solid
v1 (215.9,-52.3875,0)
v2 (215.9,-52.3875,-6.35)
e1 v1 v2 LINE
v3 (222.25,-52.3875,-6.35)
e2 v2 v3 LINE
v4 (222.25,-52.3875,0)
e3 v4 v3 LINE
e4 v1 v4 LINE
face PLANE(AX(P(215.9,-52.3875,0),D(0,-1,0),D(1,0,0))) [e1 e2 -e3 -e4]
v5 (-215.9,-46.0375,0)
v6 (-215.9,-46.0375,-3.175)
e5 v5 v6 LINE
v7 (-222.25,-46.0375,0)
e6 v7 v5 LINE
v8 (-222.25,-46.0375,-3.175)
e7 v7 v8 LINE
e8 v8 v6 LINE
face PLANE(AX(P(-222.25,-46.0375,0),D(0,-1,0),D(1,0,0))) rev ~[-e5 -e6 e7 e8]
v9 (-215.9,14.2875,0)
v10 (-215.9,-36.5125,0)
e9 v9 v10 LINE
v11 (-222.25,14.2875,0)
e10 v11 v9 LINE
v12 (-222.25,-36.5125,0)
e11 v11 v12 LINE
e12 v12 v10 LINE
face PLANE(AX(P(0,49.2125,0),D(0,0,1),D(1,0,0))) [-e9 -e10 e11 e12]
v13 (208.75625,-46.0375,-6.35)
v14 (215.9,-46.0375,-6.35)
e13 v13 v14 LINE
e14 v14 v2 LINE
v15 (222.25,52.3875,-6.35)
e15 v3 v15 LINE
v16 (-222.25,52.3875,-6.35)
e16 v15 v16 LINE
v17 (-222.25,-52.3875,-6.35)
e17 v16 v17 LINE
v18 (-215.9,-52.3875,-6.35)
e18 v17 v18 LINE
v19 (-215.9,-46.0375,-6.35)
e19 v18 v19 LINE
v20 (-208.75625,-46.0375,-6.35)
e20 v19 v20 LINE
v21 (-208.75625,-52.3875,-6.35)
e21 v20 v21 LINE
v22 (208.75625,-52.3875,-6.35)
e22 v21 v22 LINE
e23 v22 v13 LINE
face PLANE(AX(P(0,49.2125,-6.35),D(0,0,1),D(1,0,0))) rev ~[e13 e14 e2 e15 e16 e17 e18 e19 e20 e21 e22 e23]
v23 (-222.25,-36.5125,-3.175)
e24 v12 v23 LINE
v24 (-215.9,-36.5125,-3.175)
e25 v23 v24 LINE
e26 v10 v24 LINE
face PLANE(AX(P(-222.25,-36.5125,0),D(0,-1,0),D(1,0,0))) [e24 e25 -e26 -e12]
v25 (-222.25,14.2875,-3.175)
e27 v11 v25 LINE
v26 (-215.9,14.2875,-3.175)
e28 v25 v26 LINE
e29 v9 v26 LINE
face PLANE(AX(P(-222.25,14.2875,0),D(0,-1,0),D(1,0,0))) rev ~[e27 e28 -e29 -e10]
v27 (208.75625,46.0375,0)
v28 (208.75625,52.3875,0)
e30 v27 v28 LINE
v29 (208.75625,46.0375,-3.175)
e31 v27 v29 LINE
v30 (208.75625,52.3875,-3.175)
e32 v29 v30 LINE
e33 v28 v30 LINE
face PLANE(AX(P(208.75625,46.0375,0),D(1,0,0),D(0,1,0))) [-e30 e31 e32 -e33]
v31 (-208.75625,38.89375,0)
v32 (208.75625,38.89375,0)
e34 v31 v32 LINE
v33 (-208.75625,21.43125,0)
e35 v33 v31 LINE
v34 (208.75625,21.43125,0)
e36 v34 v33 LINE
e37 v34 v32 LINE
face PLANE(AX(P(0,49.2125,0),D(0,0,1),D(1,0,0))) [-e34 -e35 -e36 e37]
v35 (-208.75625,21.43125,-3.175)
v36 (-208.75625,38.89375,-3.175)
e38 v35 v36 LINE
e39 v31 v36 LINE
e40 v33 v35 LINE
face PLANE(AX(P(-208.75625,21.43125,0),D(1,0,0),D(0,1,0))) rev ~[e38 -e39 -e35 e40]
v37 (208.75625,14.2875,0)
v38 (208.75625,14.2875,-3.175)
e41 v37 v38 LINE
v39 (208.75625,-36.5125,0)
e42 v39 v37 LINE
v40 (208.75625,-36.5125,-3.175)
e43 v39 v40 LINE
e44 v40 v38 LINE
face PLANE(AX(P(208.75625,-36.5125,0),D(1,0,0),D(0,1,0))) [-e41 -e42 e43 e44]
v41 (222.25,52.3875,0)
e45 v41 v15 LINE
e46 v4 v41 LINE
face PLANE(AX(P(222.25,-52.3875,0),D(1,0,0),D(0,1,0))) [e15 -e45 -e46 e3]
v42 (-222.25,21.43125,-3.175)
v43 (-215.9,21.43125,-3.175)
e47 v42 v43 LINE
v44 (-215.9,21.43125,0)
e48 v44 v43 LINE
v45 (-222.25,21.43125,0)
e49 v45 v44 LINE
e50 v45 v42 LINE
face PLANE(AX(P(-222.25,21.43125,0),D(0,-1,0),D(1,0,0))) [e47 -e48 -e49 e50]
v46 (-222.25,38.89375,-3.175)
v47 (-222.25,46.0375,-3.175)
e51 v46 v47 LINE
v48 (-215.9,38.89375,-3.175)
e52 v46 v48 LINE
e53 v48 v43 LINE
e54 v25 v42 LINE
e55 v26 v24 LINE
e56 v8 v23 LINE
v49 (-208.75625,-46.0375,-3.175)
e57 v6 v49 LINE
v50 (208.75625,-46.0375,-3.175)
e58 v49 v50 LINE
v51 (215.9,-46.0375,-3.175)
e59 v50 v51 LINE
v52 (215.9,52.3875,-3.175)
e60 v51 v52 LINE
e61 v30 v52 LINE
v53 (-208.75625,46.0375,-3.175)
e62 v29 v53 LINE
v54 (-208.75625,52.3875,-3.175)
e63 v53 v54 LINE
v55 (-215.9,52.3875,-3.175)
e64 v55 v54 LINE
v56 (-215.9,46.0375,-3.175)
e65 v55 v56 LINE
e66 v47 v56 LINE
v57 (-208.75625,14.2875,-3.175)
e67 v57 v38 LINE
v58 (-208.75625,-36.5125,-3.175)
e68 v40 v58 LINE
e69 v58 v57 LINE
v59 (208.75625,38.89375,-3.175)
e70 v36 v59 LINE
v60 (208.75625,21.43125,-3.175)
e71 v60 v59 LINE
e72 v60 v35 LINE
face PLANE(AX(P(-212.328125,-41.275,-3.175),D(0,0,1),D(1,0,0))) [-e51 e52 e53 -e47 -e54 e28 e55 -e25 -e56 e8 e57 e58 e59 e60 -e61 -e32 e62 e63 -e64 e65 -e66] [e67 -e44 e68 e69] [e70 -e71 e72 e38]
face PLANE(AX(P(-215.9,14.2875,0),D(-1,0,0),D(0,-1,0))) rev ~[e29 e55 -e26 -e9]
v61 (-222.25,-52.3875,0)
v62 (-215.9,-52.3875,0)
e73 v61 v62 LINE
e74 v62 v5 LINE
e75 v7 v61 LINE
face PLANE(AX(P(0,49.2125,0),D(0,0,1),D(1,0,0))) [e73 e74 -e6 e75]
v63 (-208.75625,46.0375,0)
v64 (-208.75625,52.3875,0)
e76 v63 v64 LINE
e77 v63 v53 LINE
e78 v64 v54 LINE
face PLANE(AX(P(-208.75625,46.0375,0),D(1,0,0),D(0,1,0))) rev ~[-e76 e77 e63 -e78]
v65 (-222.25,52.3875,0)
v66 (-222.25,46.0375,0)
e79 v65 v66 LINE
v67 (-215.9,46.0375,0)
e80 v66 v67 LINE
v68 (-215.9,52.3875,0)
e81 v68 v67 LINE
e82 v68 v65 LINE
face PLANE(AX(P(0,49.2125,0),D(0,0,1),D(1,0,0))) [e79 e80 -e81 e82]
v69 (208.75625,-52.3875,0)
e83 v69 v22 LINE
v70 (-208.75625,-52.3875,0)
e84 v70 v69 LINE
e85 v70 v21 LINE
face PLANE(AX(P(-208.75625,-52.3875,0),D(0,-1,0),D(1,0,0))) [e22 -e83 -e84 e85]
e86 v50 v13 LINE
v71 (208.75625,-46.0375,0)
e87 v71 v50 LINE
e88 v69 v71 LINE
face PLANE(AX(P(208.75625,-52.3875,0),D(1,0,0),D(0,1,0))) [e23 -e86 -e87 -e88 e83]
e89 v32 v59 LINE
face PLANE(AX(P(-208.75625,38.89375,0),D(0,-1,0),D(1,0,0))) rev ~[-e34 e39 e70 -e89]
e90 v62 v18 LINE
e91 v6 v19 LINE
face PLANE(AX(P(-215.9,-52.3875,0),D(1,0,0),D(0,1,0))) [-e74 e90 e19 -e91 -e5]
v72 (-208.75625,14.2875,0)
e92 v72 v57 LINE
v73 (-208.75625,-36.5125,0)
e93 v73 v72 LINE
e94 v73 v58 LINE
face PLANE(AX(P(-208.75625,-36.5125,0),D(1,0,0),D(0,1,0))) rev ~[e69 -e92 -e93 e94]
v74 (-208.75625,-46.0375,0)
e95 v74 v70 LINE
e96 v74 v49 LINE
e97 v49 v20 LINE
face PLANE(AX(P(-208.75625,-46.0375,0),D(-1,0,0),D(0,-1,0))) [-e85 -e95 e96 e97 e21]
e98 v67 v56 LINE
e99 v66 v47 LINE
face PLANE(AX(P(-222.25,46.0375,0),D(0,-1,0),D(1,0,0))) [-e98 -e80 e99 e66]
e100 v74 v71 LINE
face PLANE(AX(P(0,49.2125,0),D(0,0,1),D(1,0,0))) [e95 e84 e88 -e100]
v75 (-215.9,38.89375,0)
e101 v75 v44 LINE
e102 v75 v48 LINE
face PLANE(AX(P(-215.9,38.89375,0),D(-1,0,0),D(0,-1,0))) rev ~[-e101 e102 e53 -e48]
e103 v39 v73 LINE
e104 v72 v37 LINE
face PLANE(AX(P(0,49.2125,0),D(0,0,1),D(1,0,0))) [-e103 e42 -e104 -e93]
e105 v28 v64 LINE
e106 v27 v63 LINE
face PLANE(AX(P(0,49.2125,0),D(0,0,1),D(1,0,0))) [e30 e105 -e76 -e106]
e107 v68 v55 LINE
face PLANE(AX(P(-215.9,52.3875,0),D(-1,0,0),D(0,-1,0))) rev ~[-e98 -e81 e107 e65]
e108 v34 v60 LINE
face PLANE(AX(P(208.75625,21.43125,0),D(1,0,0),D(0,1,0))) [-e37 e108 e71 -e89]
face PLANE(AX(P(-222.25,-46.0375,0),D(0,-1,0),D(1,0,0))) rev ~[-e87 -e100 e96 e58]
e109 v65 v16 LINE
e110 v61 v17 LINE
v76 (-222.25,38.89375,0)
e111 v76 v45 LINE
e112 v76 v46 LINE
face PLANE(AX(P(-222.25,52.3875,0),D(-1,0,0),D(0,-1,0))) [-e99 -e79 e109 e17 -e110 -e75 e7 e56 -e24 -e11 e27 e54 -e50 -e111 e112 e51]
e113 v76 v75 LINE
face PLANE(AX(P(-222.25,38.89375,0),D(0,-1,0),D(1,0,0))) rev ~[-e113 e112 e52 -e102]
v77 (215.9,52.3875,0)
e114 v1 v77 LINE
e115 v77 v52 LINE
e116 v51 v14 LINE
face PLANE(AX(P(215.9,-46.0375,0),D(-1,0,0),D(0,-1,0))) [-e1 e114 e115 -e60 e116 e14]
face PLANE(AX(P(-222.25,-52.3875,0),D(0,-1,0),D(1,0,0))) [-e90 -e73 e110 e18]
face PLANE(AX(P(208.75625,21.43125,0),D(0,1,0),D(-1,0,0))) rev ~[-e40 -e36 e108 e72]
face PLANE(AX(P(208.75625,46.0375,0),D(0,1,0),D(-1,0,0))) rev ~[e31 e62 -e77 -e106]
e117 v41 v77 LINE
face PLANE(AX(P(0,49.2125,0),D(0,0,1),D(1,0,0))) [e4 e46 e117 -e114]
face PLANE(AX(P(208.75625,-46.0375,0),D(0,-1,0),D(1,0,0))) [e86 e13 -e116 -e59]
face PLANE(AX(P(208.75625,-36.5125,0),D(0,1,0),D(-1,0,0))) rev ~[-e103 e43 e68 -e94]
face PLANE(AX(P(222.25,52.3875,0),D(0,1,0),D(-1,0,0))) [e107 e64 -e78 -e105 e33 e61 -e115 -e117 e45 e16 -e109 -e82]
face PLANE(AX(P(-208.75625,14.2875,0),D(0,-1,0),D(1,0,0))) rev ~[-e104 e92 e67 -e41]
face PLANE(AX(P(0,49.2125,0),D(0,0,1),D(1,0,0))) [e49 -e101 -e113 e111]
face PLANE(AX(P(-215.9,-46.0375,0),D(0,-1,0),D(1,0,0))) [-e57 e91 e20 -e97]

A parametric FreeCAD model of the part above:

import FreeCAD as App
import Part
import Sketcher
from FreeCAD import Vector
Q = App.Units.Quantity

doc = App.newDocument("Part")
body = doc.addObject("PartDesign::Body", "Body")

# Sketch on XY plane
sketch1 = body.newObject("Sketcher::SketchObject", "Sketch")
sketch1.AttachmentSupport = (doc.getObject("XY_Plane"), [""])
sketch1.MapMode = "FlatFace"
sketch1.addGeometry(Part.LineSegment(Vector(-208.75625, -46.0375, 0), Vector(-208.75625, -52.3875, 0)), False)
sketch1.addGeometry(Part.LineSegment(Vector(-208.75625, -52.3875, 0), Vector(208.75625, -52.3875, 0)), False)
sketch1.addGeometry(Part.LineSegment(Vector(208.75625, -52.3875, 0), Vector(208.75625, -46.0375, 0)), False)
sketch1.addGeometry(Part.LineSegment(Vector(208.75625, -46.0375, 0), Vector(215.9, -46.0375, 0)), False)
sketch1.addGeometry(Part.LineSegment(Vector(215.9, -46.0375, 0), Vector(215.9, -52.3875, 0)), False)
sketch1.addGeometry(Part.LineSegment(Vector(215.9, -52.3875, 0), Vector(222.25, -52.3875, 0)), False)
sketch1.addGeometry(Part.LineSegment(Vector(222.25, -52.3875, 0), Vector(222.25, 52.3875, 0)), False)
sketch1.addGeometry(Part.LineSegment(Vector(222.25, 52.3875, 0), Vector(-222.25, 52.3875, 0)), False)
sketch1.addGeometry(Part.LineSegment(Vector(-222.25, 52.3875, 0), Vector(-222.25, -52.3875, 0)), False)
sketch1.addGeometry(Part.LineSegment(Vector(-222.25, -52.3875, 0), Vector(-215.9, -52.3875, 0)), False)
sketch1.addGeometry(Part.LineSegment(Vector(-215.9, -52.3875, 0), Vector(-215.9, -46.0375, 0)), False)
sketch1.addGeometry(Part.LineSegment(Vector(-215.9, -46.0375, 0), Vector(-208.75625, -46.0375, 0)), False)
sketch1.addConstraint(Sketcher.Constraint("Coincident", 0, 2, 1, 1))
sketch1.addConstraint(Sketcher.Constraint("Coincident", 1, 2, 2, 1))
sketch1.addConstraint(Sketcher.Constraint("Coincident", 2, 2, 3, 1))
sketch1.addConstraint(Sketcher.Constraint("Coincident", 3, 2, 4, 1))
sketch1.addConstraint(Sketcher.Constraint("Coincident", 4, 2, 5, 1))
sketch1.addConstraint(Sketcher.Constraint("Coincident", 5, 2, 6, 1))
sketch1.addConstraint(Sketcher.Constraint("Coincident", 6, 2, 7, 1))
sketch1.addConstraint(Sketcher.Constraint("Coincident", 7, 2, 8, 1))
sketch1.addConstraint(Sketcher.Constraint("Coincident", 8, 2, 9, 1))
sketch1.addConstraint(Sketcher.Constraint("Coincident", 9, 2, 10, 1))
sketch1.addConstraint(Sketcher.Constraint("Coincident", 10, 2, 11, 1))
sketch1.addConstraint(Sketcher.Constraint("Coincident", 11, 2, 0, 1))
sketch1.addConstraint(Sketcher.Constraint("Vertical", 0))
sketch1.addConstraint(Sketcher.Constraint("Horizontal", 1))
sketch1.addConstraint(Sketcher.Constraint("Vertical", 2))
sketch1.addConstraint(Sketcher.Constraint("Horizontal", 3))
sketch1.addConstraint(Sketcher.Constraint("Vertical", 4))
sketch1.addConstraint(Sketcher.Constraint("Horizontal", 5))
sketch1.addConstraint(Sketcher.Constraint("Vertical", 6))
sketch1.addConstraint(Sketcher.Constraint("Horizontal", 7))
sketch1.addConstraint(Sketcher.Constraint("Vertical", 8))
sketch1.addConstraint(Sketcher.Constraint("Horizontal", 9))
sketch1.addConstraint(Sketcher.Constraint("Vertical", 10))
sketch1.addConstraint(Sketcher.Constraint("Horizontal", 11))
sketch1.addConstraint(Sketcher.Constraint("Symmetric", 5, 2, 7, 2, -1, 1))
sketch1.addConstraint(Sketcher.Constraint("Symmetric", 4, 2, 9, 2, -2))
sketch1.addConstraint(Sketcher.Constraint("Symmetric", 2, 2, 11, 2, -2))
sketch1.addConstraint(Sketcher.Constraint("Horizontal", 1, 2, 4, 2))
sketch1.addConstraint(Sketcher.Constraint("Equal", 9, 0))
sketch1.addConstraint(Sketcher.Constraint("DistanceX", 7, 2, 7, 1, Q("17.5 in")))
sketch1.addConstraint(Sketcher.Constraint("DistanceX", 5, 1, 5, 2, Q("0.25 in")))
sketch1.addConstraint(Sketcher.Constraint("DistanceX", 1, 1, 1, 2, Q("16.4375 in")))
sketch1.addConstraint(Sketcher.Constraint("DistanceY", 6, 1, 6, 2, Q("4.125 in")))
pad1 = body.newObject("PartDesign::Pad", "Pad")
pad1.Profile = sketch1
pad1.Length = Q("0.25 in")
pad1.Reversed = True

# Sketch on XY plane
sketch2 = body.newObject("Sketcher::SketchObject", "Sketch001")
sketch2.AttachmentSupport = (doc.getObject("XY_Plane"), [""])
sketch2.MapMode = "FlatFace"
sketch2.addGeometry(Part.LineSegment(Vector(215.9, 52.3875, 0), Vector(208.75625, 52.3875, 0)), False)
sketch2.addGeometry(Part.LineSegment(Vector(208.75625, 52.3875, 0), Vector(208.75625, 46.0375, 0)), False)
sketch2.addGeometry(Part.LineSegment(Vector(208.75625, 46.0375, 0), Vector(-208.75625, 46.0375, 0)), False)
sketch2.addGeometry(Part.LineSegment(Vector(-208.75625, 46.0375, 0), Vector(-208.75625, 52.3875, 0)), False)
sketch2.addGeometry(Part.LineSegment(Vector(-208.75625, 52.3875, 0), Vector(-215.9, 52.3875, 0)), False)
sketch2.addGeometry(Part.LineSegment(Vector(-215.9, 52.3875, 0), Vector(-215.9, 46.0375, 0)), False)
sketch2.addGeometry(Part.LineSegment(Vector(-215.9, 46.0375, 0), Vector(-222.25, 46.0375, 0)), False)
sketch2.addGeometry(Part.LineSegment(Vector(-222.25, 46.0375, 0), Vector(-222.25, 38.89375, 0)), False)
sketch2.addGeometry(Part.LineSegment(Vector(-222.25, 38.89375, 0), Vector(-215.9, 38.89375, 0)), False)
sketch2.addGeometry(Part.LineSegment(Vector(-215.9, 38.89375, 0), Vector(-215.9, 21.43125, 0)), False)
sketch2.addGeometry(Part.LineSegment(Vector(-215.9, 21.43125, 0), Vector(-222.25, 21.43125, 0)), False)
sketch2.addGeometry(Part.LineSegment(Vector(-222.25, 21.43125, 0), Vector(-222.25, 14.2875, 0)), False)
sketch2.addGeometry(Part.LineSegment(Vector(-222.25, 14.2875, 0), Vector(-215.9, 14.2875, 0)), False)
sketch2.addGeometry(Part.LineSegment(Vector(-215.9, 14.2875, 0), Vector(-215.9, -36.5125, 0)), False)
sketch2.addGeometry(Part.LineSegment(Vector(-215.9, -36.5125, 0), Vector(-222.25, -36.5125, 0)), False)
sketch2.addGeometry(Part.LineSegment(Vector(-222.25, -36.5125, 0), Vector(-222.25, -46.0375, 0)), False)
sketch2.addGeometry(Part.LineSegment(Vector(-222.25, -46.0375, 0), Vector(215.9, -46.0375, 0)), False)
sketch2.addGeometry(Part.LineSegment(Vector(215.9, -46.0375, 0), Vector(215.9, 52.3875, 0)), False)
sketch2.addGeometry(Part.LineSegment(Vector(-208.75625, -36.5125, 0), Vector(-208.75625, 14.2875, 0)), False)
sketch2.addGeometry(Part.LineSegment(Vector(-208.75625, 14.2875, 0), Vector(208.75625, 14.2875, 0)), False)
sketch2.addGeometry(Part.LineSegment(Vector(208.75625, 14.2875, 0), Vector(208.75625, -36.5125, 0)), False)
sketch2.addGeometry(Part.LineSegment(Vector(208.75625, -36.5125, 0), Vector(-208.75625, -36.5125, 0)), False)
sketch2.addGeometry(Part.LineSegment(Vector(208.75625, 21.43125, 0), Vector(-208.75625, 21.43125, 0)), False)
sketch2.addGeometry(Part.LineSegment(Vector(-208.75625, 21.43125, 0), Vector(-208.75625, 38.89375, 0)), False)
sketch2.addGeometry(Part.LineSegment(Vector(-208.75625, 38.89375, 0), Vector(208.75625, 38.89375, 0)), False)
sketch2.addGeometry(Part.LineSegment(Vector(208.75625, 38.89375, 0), Vector(208.75625, 21.43125, 0)), False)
sketch2.addConstraint(Sketcher.Constraint("Coincident", 0, 2, 1, 1))
sketch2.addConstraint(Sketcher.Constraint("Coincident", 1, 2, 2, 1))
sketch2.addConstraint(Sketcher.Constraint("Coincident", 2, 2, 3, 1))
sketch2.addConstraint(Sketcher.Constraint("Coincident", 3, 2, 4, 1))
sketch2.addConstraint(Sketcher.Constraint("Coincident", 4, 2, 5, 1))
sketch2.addConstraint(Sketcher.Constraint("Coincident", 5, 2, 6, 1))
sketch2.addConstraint(Sketcher.Constraint("Coincident", 6, 2, 7, 1))
sketch2.addConstraint(Sketcher.Constraint("Coincident", 7, 2, 8, 1))
sketch2.addConstraint(Sketcher.Constraint("Coincident", 8, 2, 9, 1))
sketch2.addConstraint(Sketcher.Constraint("Coincident", 9, 2, 10, 1))
sketch2.addConstraint(Sketcher.Constraint("Coincident", 10, 2, 11, 1))
sketch2.addConstraint(Sketcher.Constraint("Coincident", 11, 2, 12, 1))
sketch2.addConstraint(Sketcher.Constraint("Coincident", 12, 2, 13, 1))
sketch2.addConstraint(Sketcher.Constraint("Coincident", 13, 2, 14, 1))
sketch2.addConstraint(Sketcher.Constraint("Coincident", 14, 2, 15, 1))
sketch2.addConstraint(Sketcher.Constraint("Coincident", 15, 2, 16, 1))
sketch2.addConstraint(Sketcher.Constraint("Coincident", 16, 2, 17, 1))
sketch2.addConstraint(Sketcher.Constraint("Coincident", 17, 2, 0, 1))
sketch2.addConstraint(Sketcher.Constraint("Coincident", 18, 2, 19, 1))
sketch2.addConstraint(Sketcher.Constraint("Coincident", 19, 2, 20, 1))
sketch2.addConstraint(Sketcher.Constraint("Coincident", 20, 2, 21, 1))
sketch2.addConstraint(Sketcher.Constraint("Coincident", 21, 2, 18, 1))
sketch2.addConstraint(Sketcher.Constraint("Coincident", 22, 2, 23, 1))
sketch2.addConstraint(Sketcher.Constraint("Coincident", 23, 2, 24, 1))
sketch2.addConstraint(Sketcher.Constraint("Coincident", 24, 2, 25, 1))
sketch2.addConstraint(Sketcher.Constraint("Coincident", 25, 2, 22, 1))
sketch2.addConstraint(Sketcher.Constraint("Horizontal", 0))
sketch2.addConstraint(Sketcher.Constraint("Vertical", 1))
sketch2.addConstraint(Sketcher.Constraint("Horizontal", 2))
sketch2.addConstraint(Sketcher.Constraint("Vertical", 3))
sketch2.addConstraint(Sketcher.Constraint("Horizontal", 4))
sketch2.addConstraint(Sketcher.Constraint("Vertical", 5))
sketch2.addConstraint(Sketcher.Constraint("Horizontal", 6))
sketch2.addConstraint(Sketcher.Constraint("Vertical", 7))
sketch2.addConstraint(Sketcher.Constraint("Horizontal", 8))
sketch2.addConstraint(Sketcher.Constraint("Vertical", 9))
sketch2.addConstraint(Sketcher.Constraint("Horizontal", 10))
sketch2.addConstraint(Sketcher.Constraint("Vertical", 11))
sketch2.addConstraint(Sketcher.Constraint("Horizontal", 12))
sketch2.addConstraint(Sketcher.Constraint("Vertical", 13))
sketch2.addConstraint(Sketcher.Constraint("Horizontal", 14))
sketch2.addConstraint(Sketcher.Constraint("Vertical", 15))
sketch2.addConstraint(Sketcher.Constraint("Horizontal", 16))
sketch2.addConstraint(Sketcher.Constraint("Vertical", 17))
sketch2.addConstraint(Sketcher.Constraint("Vertical", 18))
sketch2.addConstraint(Sketcher.Constraint("Horizontal", 19))
sketch2.addConstraint(Sketcher.Constraint("Vertical", 20))
sketch2.addConstraint(Sketcher.Constraint("Horizontal", 21))
sketch2.addConstraint(Sketcher.Constraint("Horizontal", 22))
sketch2.addConstraint(Sketcher.Constraint("Vertical", 23))
sketch2.addConstraint(Sketcher.Constraint("Horizontal", 24))
sketch2.addConstraint(Sketcher.Constraint("Vertical", 25))
sketch2.addConstraint(Sketcher.Constraint("Symmetric", 5, 2, 16, 2, -1, 1))
sketch2.addConstraint(Sketcher.Constraint("Symmetric", 0, 2, 3, 2, -2))
sketch2.addConstraint(Sketcher.Constraint("Horizontal", 2, 2, 5, 2))
sketch2.addConstraint(Sketcher.Constraint("Horizontal", 12, 2, 18, 2))
sketch2.addConstraint(Sketcher.Constraint("Horizontal", 14, 2, 20, 2))
sketch2.addConstraint(Sketcher.Constraint("Horizontal", 10, 2, 22, 2))
sketch2.addConstraint(Sketcher.Constraint("Horizontal", 8, 2, 23, 2))
sketch2.addConstraint(Sketcher.Constraint("Vertical", 5, 2, 8, 2))
sketch2.addConstraint(Sketcher.Constraint("Vertical", 7, 2, 10, 2))
sketch2.addConstraint(Sketcher.Constraint("Vertical", 9, 2, 12, 2))
sketch2.addConstraint(Sketcher.Constraint("Vertical", 11, 2, 14, 2))
sketch2.addConstraint(Sketcher.Constraint("Vertical", 3, 2, 18, 2))
sketch2.addConstraint(Sketcher.Constraint("Vertical", 1, 2, 19, 2))
sketch2.addConstraint(Sketcher.Constraint("Vertical", 21, 2, 22, 2))
sketch2.addConstraint(Sketcher.Constraint("Vertical", 20, 2, 24, 2))
sketch2.addConstraint(Sketcher.Constraint("Equal", 14, 1))
sketch2.addConstraint(Sketcher.Constraint("Equal", 4, 7))
sketch2.addConstraint(Sketcher.Constraint("Equal", 7, 11))
sketch2.addConstraint(Sketcher.Constraint("DistanceY", 13, 2, 13, 1, Q("2 in")))
sketch2.addConstraint(Sketcher.Constraint("DistanceX", 13, 2, 16, 2, Q("17 in")))
sketch2.addConstraint(Sketcher.Constraint("DistanceX", 6, 2, 6, 1, Q("0.25 in")))
sketch2.addConstraint(Sketcher.Constraint("DistanceY", 19, 2, 0, 2, Q("1.5 in")))
sketch2.addConstraint(Sketcher.Constraint("DistanceX", 0, 2, 0, 1, Q("0.28125 in")))
sketch2.addConstraint(Sketcher.Constraint("DistanceY", 15, 2, 15, 1, Q("0.375 in")))
pocket1 = body.newObject("PartDesign::Pocket", "Pocket")
pocket1.Profile = sketch2
pocket1.Length = Q("0.125 in")

doc.recompute()
